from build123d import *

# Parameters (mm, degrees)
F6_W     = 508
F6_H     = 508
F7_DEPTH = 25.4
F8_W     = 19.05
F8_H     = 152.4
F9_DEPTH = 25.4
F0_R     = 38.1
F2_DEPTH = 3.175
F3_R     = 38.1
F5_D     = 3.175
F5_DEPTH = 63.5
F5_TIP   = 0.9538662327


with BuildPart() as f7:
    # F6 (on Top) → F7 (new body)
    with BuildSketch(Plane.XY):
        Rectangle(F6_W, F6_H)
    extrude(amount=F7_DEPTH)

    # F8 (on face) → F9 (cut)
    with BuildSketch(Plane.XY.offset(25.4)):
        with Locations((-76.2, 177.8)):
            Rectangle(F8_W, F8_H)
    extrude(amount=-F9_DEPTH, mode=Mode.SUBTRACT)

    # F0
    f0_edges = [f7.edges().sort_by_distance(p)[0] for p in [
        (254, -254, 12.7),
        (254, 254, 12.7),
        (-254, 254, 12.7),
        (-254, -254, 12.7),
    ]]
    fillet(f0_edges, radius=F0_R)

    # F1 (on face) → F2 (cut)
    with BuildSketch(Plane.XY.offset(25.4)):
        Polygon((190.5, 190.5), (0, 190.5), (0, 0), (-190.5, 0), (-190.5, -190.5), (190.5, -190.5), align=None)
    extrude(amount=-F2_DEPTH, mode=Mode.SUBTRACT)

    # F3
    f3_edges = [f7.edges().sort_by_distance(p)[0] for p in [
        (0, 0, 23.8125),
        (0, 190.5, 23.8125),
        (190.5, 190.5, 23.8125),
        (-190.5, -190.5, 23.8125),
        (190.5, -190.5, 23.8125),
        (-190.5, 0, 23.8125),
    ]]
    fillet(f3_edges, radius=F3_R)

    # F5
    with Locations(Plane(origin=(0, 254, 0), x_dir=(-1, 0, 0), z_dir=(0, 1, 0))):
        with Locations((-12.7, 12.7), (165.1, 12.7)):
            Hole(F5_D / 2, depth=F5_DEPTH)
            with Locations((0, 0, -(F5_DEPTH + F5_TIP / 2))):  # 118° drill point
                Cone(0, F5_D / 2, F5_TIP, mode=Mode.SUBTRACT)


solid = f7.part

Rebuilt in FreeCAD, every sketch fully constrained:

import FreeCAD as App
import Part
import Sketcher

V = App.Vector
Q = App.Units.Quantity


def edges_at(feature, points):
    """Names of the edges that pass closest to the given points."""
    edges = feature.Shape.Edges
    near = lambda p: min(range(len(edges)), key=lambda i: edges[i].distToShape(Part.Vertex(*p))[0])
    return sorted({f"Edge{near(p) + 1}" for p in points})


def add_polygon(sketch, points):
    """Adds a closed chain of lines whose ends are joined by coincident constraints."""
    first, n = sketch.GeometryCount, len(points)
    for a, b in zip(points, points[1:] + points[:1]):
        sketch.addGeometry(Part.LineSegment(App.Vector(*a, 0), App.Vector(*b, 0)), False)
    for i in range(n):
        sketch.addConstraint(Sketcher.Constraint("Coincident", first + i, 2, first + (i + 1) % n, 1))

doc = App.newDocument("Part")
params = doc.addObject("Spreadsheet::Sheet", "Params")
for row, (alias, value) in enumerate([
    ("sketch1_width", "20 in"),
    ("pad1_length", "1 in"),
    ("sketch2_height", "6 in"),
    ("sketch2_width", "0.75 in"),
    ("pocket1_length", "1 in"),
    ("fillet_radius", "1.5 in"),
    ("sketch3_width", "15 in"),
    ("pocket2_length", "0.125 in"),
    ("fillet2_radius", "1.5 in"),
    ("sketch4_diameter", "0.125 in"),
    ("hole_diameter", "0.125 in"),
    ("hole_depth", "2.5 in"),
], start=1):
    params.set(f"A{row}", alias)
    params.set(f"B{row}", "=" + value)
    params.setAlias(f"B{row}", alias)

body = doc.addObject("PartDesign::Body", "Body")

# Sketch on XY plane
sketch1 = body.newObject("Sketcher::SketchObject", "Sketch")
sketch1.AttachmentSupport = (doc.getObject("XY_Plane"), [""])
sketch1.MapMode = "FlatFace"
add_polygon(sketch1, [(-254, 254), (-254, -254), (254, -254), (254, 254)])  # lines 0-3
sketch1.addConstraint(Sketcher.Constraint("Vertical", 0))
sketch1.addConstraint(Sketcher.Constraint("Horizontal", 1))
sketch1.addConstraint(Sketcher.Constraint("Vertical", 2))
sketch1.addConstraint(Sketcher.Constraint("Horizontal", 3))
sketch1.addConstraint(Sketcher.Constraint("Symmetric", 0, 2, 2, 2, -1, 1))
sketch1.addConstraint(Sketcher.Constraint("Equal", 3, 0))
sketch1.addConstraint(Sketcher.Constraint("DistanceX", 1, 1, 1, 2, Q("20 in")))
sketch1.setExpression("Constraints[10]", "Params.sketch1_width")
pad1 = body.newObject("PartDesign::Pad", "Pad")
pad1.Profile = sketch1
pad1.setExpression("Length", "Params.pad1_length")

# Sketch on XY plane
sketch2 = body.newObject("Sketcher::SketchObject", "Sketch001")
sketch2.AttachmentSupport = (doc.getObject("XY_Plane"), [""])
sketch2.MapMode = "FlatFace"
sketch2.AttachmentOffset = App.Placement(V(0, 0, 1 * 25.4), App.Rotation())
add_polygon(sketch2, [(-85.725, 254), (-85.725, 101.6), (-66.675, 101.6), (-66.675, 254)])  # lines 0-3
sketch2.addConstraint(Sketcher.Constraint("Vertical", 0))
sketch2.addConstraint(Sketcher.Constraint("Horizontal", 1))
sketch2.addConstraint(Sketcher.Constraint("Vertical", 2))
sketch2.addConstraint(Sketcher.Constraint("Horizontal", 3))
sketch2.addConstraint(Sketcher.Constraint("DistanceY", 0, 2, 0, 1, Q("6 in")))
sketch2.addConstraint(Sketcher.Constraint("DistanceY", -1, 1, 0, 2, Q("4 in")))
sketch2.addConstraint(Sketcher.Constraint("DistanceX", 1, 1, 1, 2, Q("0.75 in")))
sketch2.addConstraint(Sketcher.Constraint("DistanceX", 0, 2, -1, 1, Q("3.375 in")))
sketch2.setExpression("Constraints[8]", "Params.sketch2_height")
sketch2.setExpression("Constraints[10]", "Params.sketch2_width")
pocket1 = body.newObject("PartDesign::Pocket", "Pocket")
pocket1.Profile = sketch2
pocket1.setExpression("Length", "Params.pocket1_length")
doc.recompute()

fillet = body.newObject("PartDesign::Fillet", "Fillet")
fillet.Base = (pocket1, edges_at(pocket1, [
    (254, -254, 12.7),
    (254, 254, 12.7),
    (-254, 254, 12.7),
    (-254, -254, 12.7),
]))
fillet.setExpression("Radius", "Params.fillet_radius")

# Sketch on XY plane
sketch3 = body.newObject("Sketcher::SketchObject", "Sketch002")
sketch3.AttachmentSupport = (doc.getObject("XY_Plane"), [""])
sketch3.MapMode = "FlatFace"
sketch3.AttachmentOffset = App.Placement(V(0, 0, 1 * 25.4), App.Rotation())
add_polygon(sketch3, [(190.5, 190.5), (0, 190.5), (0, 0), (-190.5, 0), (-190.5, -190.5), (190.5, -190.5)])  # lines 0-5
sketch3.addConstraint(Sketcher.Constraint("Horizontal", 0))
sketch3.addConstraint(Sketcher.Constraint("Vertical", 1))
sketch3.addConstraint(Sketcher.Constraint("Horizontal", 2))
sketch3.addConstraint(Sketcher.Constraint("Vertical", 3))
sketch3.addConstraint(Sketcher.Constraint("Horizontal", 4))
sketch3.addConstraint(Sketcher.Constraint("Vertical", 5))
sketch3.addConstraint(Sketcher.Constraint("Coincident", 1, 2, -1, 1))
sketch3.addConstraint(Sketcher.Constraint("Symmetric", 3, 2, 5, 2, -1, 1))
sketch3.addConstraint(Sketcher.Constraint("Equal", 2, 1))
sketch3.addConstraint(Sketcher.Constraint("DistanceX", 4, 1, 4, 2, Q("15 in")))
sketch3.setExpression("Constraints[15]", "Params.sketch3_width")
pocket2 = body.newObject("PartDesign::Pocket", "Pocket001")
pocket2.Profile = sketch3
pocket2.setExpression("Length", "Params.pocket2_length")
doc.recompute()

fillet2 = body.newObject("PartDesign::Fillet", "Fillet001")
fillet2.Base = (pocket2, edges_at(pocket2, [
    (0, 0, 23.812),
    (0, 190.5, 23.812),
    (190.5, 190.5, 23.812),
    (-190.5, -190.5, 23.812),
    (190.5, -190.5, 23.812),
    (-190.5, 0, 23.812),
]))
fillet2.setExpression("Radius", "Params.fillet2_radius")

# Sketch on XZ plane
sketch4 = body.newObject("Sketcher::SketchObject", "Sketch003")
sketch4.AttachmentSupport = (doc.getObject("XZ_Plane"), [""])
sketch4.MapMode = "FlatFace"
sketch4.AttachmentOffset = App.Placement(V(0, 0, -10 * 25.4), App.Rotation())
sketch4.addGeometry(Part.Circle(V(12.7, 12.7, 0), V(0, 0, 1), 1.5875), False)
sketch4.addGeometry(Part.Circle(V(-165.1, 12.7, 0), V(0, 0, 1), 1.5875), False)
sketch4.addConstraint(Sketcher.Constraint("Equal", 0, 1))
sketch4.addConstraint(Sketcher.Constraint("Horizontal", 0, 3, 1, 3))
sketch4.addConstraint(Sketcher.Constraint("Diameter", 0, Q("0.125 in")))
sketch4.addConstraint(Sketcher.Constraint("DistanceX", 1, 3, 0, 3, Q("7 in")))
sketch4.addConstraint(Sketcher.Constraint("DistanceX", -1, 1, 0, 3, Q("0.5 in")))
sketch4.addConstraint(Sketcher.Constraint("DistanceY", -1, 1, 0, 3, Q("0.5 in")))
sketch4.setExpression("Constraints[2]", "Params.sketch4_diameter")
doc.recompute()
hole = body.newObject("PartDesign::Hole", "Hole")
hole.Profile = sketch4
hole.ThreadType = "None"
hole.setExpression("Diameter", "Params.hole_diameter")
hole.DepthType = "Dimension"
hole.setExpression("Depth", "Params.hole_depth")
hole.DrillPoint = "Angled"
hole.DrillPointAngle = 118
hole.Reversed = True

doc.recompute()
